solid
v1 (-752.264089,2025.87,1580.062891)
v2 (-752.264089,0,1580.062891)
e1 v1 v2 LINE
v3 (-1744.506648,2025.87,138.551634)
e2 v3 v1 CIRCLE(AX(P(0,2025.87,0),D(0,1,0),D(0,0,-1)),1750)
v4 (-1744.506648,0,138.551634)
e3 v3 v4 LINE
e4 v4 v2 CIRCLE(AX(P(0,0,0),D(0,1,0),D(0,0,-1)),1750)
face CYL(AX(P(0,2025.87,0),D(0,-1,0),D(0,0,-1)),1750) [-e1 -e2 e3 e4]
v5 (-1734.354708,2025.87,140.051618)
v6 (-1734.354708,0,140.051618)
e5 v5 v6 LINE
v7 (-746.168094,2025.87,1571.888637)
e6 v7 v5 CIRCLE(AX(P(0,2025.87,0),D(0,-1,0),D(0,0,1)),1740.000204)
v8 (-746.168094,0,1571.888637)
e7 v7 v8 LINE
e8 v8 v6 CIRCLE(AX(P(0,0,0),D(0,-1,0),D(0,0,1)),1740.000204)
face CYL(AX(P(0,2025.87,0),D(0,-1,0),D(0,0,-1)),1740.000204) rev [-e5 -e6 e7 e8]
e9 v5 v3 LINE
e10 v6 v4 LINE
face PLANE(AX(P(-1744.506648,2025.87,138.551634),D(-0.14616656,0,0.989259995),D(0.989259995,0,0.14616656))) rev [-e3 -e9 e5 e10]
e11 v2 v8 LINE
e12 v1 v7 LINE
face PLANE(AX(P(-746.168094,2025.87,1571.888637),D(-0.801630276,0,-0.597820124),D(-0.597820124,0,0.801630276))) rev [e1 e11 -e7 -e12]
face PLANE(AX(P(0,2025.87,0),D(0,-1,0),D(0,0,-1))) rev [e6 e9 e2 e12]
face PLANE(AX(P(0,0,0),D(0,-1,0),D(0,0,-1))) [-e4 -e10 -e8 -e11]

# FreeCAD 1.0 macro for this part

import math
import FreeCAD as App
import Part
import Sketcher
Q = App.Units.Quantity

doc = App.newDocument("Part")
body = doc.addObject("PartDesign::Body", "Body")

# Sketch on XZ plane
sketch1 = doc.addObject("Sketcher::SketchObject", "Sketch")
body.addObject(sketch1)
sketch1.AttachmentSupport = (doc.XZ_Plane, [""])
sketch1.MapMode = "FlatFace"
sketch1.addGeometry([
    Part.LineSegment(App.Vector(-752.264089, 1580.062891, 0), App.Vector(-746.168094, 1571.888637, 0)),
    Part.ArcOfCircle(Part.Circle(App.Vector(0, 0, 0), App.Vector(0, 0, 1), 1740.000204), math.radians(115.393471), math.radians(175.383301)),
    Part.LineSegment(App.Vector(-1734.354708, 140.051618, 0), App.Vector(-1744.506648, 138.551634, 0)),
    Part.ArcOfCircle(Part.Circle(App.Vector(0, 0, 0), App.Vector(0, 0, 1), 1750), math.radians(115.459005), math.radians(175.459005)),
], False)
sketch1.addConstraint([
    Sketcher.Constraint("Coincident", 0, 2, 1, 1),
    Sketcher.Constraint("Coincident", 1, 2, 2, 1),
    Sketcher.Constraint("Coincident", 2, 2, 3, 2),
    Sketcher.Constraint("Coincident", 3, 1, 0, 1),
    Sketcher.Constraint("Coincident", 1, 3, -1, 1),
    Sketcher.Constraint("Coincident", 3, 3, -1, 1),
    Sketcher.Constraint("Radius", 3, Q("1750 mm")),
    Sketcher.Constraint("Radius", 1, Q("1740.000204 mm")),
    Sketcher.Constraint("Distance", 0, Q("10.197039 mm")),
    Sketcher.Constraint("Distance", 2, Q("10.262155 mm")),
    Sketcher.Constraint("DistanceX", 0, 2, -1, 1, Q("746.168094 mm")),
    Sketcher.Constraint("DistanceX", 2, 2, -1, 1, Q("1744.506648 mm")),
])
pad1 = doc.addObject("PartDesign::Pad", "Pad")
body.addObject(pad1)
pad1.Profile = sketch1
pad1.Length = 2025.87
pad1.Reversed = True

doc.recompute()
